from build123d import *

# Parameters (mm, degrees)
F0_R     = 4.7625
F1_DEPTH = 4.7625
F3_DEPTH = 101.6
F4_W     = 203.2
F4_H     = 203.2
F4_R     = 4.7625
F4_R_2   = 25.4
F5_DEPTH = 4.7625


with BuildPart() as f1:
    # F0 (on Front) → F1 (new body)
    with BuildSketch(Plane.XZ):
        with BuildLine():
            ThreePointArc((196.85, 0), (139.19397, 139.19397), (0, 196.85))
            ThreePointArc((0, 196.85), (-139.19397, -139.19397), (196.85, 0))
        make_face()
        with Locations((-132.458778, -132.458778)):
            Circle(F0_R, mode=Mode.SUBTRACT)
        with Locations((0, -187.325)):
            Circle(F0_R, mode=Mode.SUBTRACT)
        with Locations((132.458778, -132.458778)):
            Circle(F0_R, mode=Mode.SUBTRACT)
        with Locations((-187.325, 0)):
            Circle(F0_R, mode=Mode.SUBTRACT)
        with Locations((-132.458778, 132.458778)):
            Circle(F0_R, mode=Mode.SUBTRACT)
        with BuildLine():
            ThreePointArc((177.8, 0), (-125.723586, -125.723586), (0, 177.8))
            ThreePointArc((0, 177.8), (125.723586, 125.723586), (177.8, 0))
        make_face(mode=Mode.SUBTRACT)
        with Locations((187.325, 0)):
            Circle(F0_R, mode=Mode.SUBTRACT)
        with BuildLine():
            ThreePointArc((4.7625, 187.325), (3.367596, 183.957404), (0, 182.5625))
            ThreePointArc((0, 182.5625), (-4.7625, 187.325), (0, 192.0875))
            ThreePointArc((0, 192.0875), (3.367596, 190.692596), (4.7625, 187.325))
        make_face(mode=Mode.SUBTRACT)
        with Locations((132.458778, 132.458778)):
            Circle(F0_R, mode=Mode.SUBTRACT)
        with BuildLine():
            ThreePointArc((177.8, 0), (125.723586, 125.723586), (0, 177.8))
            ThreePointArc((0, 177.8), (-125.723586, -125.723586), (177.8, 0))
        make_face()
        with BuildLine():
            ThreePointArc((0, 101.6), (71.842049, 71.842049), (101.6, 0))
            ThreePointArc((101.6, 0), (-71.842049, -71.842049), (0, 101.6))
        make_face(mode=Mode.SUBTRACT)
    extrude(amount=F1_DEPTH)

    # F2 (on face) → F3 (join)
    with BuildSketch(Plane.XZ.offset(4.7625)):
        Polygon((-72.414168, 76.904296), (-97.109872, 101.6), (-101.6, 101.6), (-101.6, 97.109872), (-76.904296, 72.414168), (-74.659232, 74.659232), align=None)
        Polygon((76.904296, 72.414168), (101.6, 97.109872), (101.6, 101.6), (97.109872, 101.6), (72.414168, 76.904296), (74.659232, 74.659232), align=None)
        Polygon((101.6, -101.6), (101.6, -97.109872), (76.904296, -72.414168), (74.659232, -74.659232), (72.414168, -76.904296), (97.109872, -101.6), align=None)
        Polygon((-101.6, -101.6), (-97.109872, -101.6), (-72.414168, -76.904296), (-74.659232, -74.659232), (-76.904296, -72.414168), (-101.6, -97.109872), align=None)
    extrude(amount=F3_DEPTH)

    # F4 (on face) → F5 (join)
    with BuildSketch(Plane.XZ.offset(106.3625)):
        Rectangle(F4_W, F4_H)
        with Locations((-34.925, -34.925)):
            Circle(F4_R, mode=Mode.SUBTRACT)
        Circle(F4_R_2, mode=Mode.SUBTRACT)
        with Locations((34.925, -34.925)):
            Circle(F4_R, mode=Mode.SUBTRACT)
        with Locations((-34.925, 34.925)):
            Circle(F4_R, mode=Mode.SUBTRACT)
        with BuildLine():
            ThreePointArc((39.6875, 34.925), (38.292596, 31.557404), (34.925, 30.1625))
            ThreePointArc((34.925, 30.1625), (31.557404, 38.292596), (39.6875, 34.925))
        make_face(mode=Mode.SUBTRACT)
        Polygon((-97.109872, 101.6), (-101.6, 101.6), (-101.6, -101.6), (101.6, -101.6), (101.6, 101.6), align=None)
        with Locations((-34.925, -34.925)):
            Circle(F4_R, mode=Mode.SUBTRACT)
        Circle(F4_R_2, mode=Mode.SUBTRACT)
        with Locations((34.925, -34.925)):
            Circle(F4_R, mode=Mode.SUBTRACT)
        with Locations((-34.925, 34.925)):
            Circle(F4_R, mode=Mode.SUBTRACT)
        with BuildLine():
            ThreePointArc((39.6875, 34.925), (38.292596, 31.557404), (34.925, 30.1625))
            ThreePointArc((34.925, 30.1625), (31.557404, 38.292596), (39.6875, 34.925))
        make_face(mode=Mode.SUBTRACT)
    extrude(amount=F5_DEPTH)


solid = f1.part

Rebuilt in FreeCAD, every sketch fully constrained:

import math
import FreeCAD as App
import Part
import Sketcher
from FreeCAD import Vector
Q = App.Units.Quantity


def add_polygon(sketch, points):
    """Adds a closed chain of lines whose ends are joined by coincident constraints."""
    first, n = sketch.GeometryCount, len(points)
    for a, b in zip(points, points[1:] + points[:1]):
        sketch.addGeometry(Part.LineSegment(App.Vector(*a, 0), App.Vector(*b, 0)), False)
    for i in range(n):
        sketch.addConstraint(Sketcher.Constraint("Coincident", first + i, 2, first + (i + 1) % n, 1))

doc = App.newDocument("Part")
body = doc.addObject("PartDesign::Body", "Body")

# Sketch on XZ plane
sketch1 = doc.addObject("Sketcher::SketchObject", "Sketch")
body.addObject(sketch1)
sketch1.AttachmentSupport = (doc.XZ_Plane, [""])
sketch1.MapMode = "FlatFace"
sketch1.addGeometry([
    Part.ArcOfCircle(Part.Circle(Vector(0, 0, 0), Vector(0, 0, 1), 196.8), math.radians(0), math.radians(90)),  # 0
    Part.ArcOfCircle(Part.Circle(Vector(0, 0, 0), Vector(0, 0, 1), 196.9), math.radians(90), math.radians(360)),  # 1
    Part.Circle(Vector(-132.5, -132.5, 0), Vector(0, 0, 1), 4.8),  # 2
    Part.Circle(Vector(-187.3, 0, 0), Vector(0, 0, 1), 4.8),  # 3
    Part.ArcOfCircle(Part.Circle(Vector(0, 0, 0), Vector(0, 0, 1), 101.6), math.radians(90), math.radians(360)),  # 4
    Part.ArcOfCircle(Part.Circle(Vector(0, 0, 0), Vector(0, 0, 1), 101.6), math.radians(0), math.radians(90)),  # 5
    Part.Circle(Vector(0, -187.3, 0), Vector(0, 0, 1), 4.8),  # 6
    Part.Circle(Vector(132.5, -132.5, 0), Vector(0, 0, 1), 4.8),  # 7
    Part.Circle(Vector(187.3, 0, 0), Vector(0, 0, 1), 4.8),  # 8
    Part.Circle(Vector(-132.5, 132.5, 0), Vector(0, 0, 1), 4.8),  # 9
    Part.ArcOfCircle(Part.Circle(Vector(0, 187.3, 0), Vector(0, 0, 1), 4.8), math.radians(0), math.radians(90)),  # 10
    Part.ArcOfCircle(Part.Circle(Vector(0, 187.3, 0), Vector(0, 0, 1), 4.8), math.radians(-90), math.radians(0)),  # 11
    Part.ArcOfCircle(Part.Circle(Vector(0, 187.3, 0), Vector(0, 0, 1), 4.8), math.radians(90), math.radians(270)),  # 12
    Part.Circle(Vector(132.5, 132.5, 0), Vector(0, 0, 1), 4.8),  # 13
], False)
sketch1.addConstraint([
    Sketcher.Constraint("Tangent", 0, 1, 1, 2),
    Sketcher.Constraint("Coincident", 1, 1, 0, 2),
    Sketcher.Constraint("Tangent", 4, 1, 5, 2),
    Sketcher.Constraint("Coincident", 5, 1, 4, 2),
    Sketcher.Constraint("Tangent", 10, 1, 11, 2),
    Sketcher.Constraint("Tangent", 11, 1, 12, 2),
    Sketcher.Constraint("Tangent", 12, 1, 10, 2),
    Sketcher.Constraint("Coincident", 0, 3, -1, 1),
    Sketcher.Constraint("Coincident", 4, 3, -1, 1),
    Sketcher.Constraint("Equal", 2, 3),
    Sketcher.Constraint("Equal", 3, 6),
    Sketcher.Constraint("Equal", 6, 7),
    Sketcher.Constraint("Equal", 7, 8),
    Sketcher.Constraint("Equal", 8, 9),
    Sketcher.Constraint("Equal", 9, 10),
    Sketcher.Constraint("Equal", 12, 13),
    Sketcher.Constraint("Symmetric", 3, 3, 8, 3, -1, 1),
    Sketcher.Constraint("Symmetric", 7, 3, 9, 3, -1, 1),
    Sketcher.Constraint("Symmetric", 6, 3, 10, 3, -1, 1),
    Sketcher.Constraint("Symmetric", 2, 3, 13, 3, -1, 1),
    Sketcher.Constraint("Symmetric", 2, 3, 7, 3, -2),
    Sketcher.Constraint("PointOnObject", 3, 3, -1),
    Sketcher.Constraint("PointOnObject", 6, 3, -2),
    Sketcher.Constraint("PointOnObject", 0, 1, -1),
    Sketcher.Constraint("PointOnObject", 1, 1, -2),
    Sketcher.Constraint("PointOnObject", 4, 1, -2),
    Sketcher.Constraint("PointOnObject", 5, 1, -1),
    Sketcher.Constraint("PointOnObject", 11, 1, -2),
    Sketcher.Constraint("PointOnObject", 12, 1, -2),
    Sketcher.Constraint("Horizontal", 12, 3, 10, 1),
    Sketcher.Constraint("Radius", 4, Q("4 in")),
    Sketcher.Constraint("Radius", 0, Q("7.75 in")),
    Sketcher.Constraint("Diameter", 2, Q("0.375 in")),
    Sketcher.Constraint("DistanceX", 3, 3, -1, 1, Q("7.375 in")),
    Sketcher.Constraint("DistanceY", 6, 3, -1, 1, Q("7.375 in")),
    Sketcher.Constraint("DistanceX", 2, 3, -1, 1, 132.458778),
    Sketcher.Constraint("DistanceY", 2, 3, -1, 1, 132.458778),
])
pad1 = doc.addObject("PartDesign::Pad", "Pad")
body.addObject(pad1)
pad1.Profile = sketch1
pad1.Length = Q("0.1875 in")

# Sketch on XZ plane
sketch2 = doc.addObject("Sketcher::SketchObject", "Sketch001")
body.addObject(sketch2)
sketch2.AttachmentSupport = (doc.XZ_Plane, [""])
sketch2.MapMode = "FlatFace"
sketch2.AttachmentOffset = App.Placement(Vector(0, 0, 0.1875 * 25.4), App.Rotation())
add_polygon(sketch2, [(-72.4, 76.9), (-97.1, 101.6), (-101.6, 101.6), (-101.6, 97.1), (-76.9, 72.4)])  # lines 0-4
add_polygon(sketch2, [(76.9, 72.4), (101.6, 97.1), (101.6, 101.6), (97.1, 101.6), (72.4, 76.9)])  # lines 5-9
add_polygon(sketch2, [(101.6, -101.6), (101.6, -97.1), (76.9, -72.4), (72.4, -76.9), (97.1, -101.6)])  # lines 10-14
add_polygon(sketch2, [(-101.6, -101.6), (-97.1, -101.6), (-72.4, -76.9), (-76.9, -72.4), (-101.6, -97.1)])  # lines 15-19
sketch2.addConstraint([
    Sketcher.Constraint("Horizontal", 1),
    Sketcher.Constraint("Vertical", 2),
    Sketcher.Constraint("Vertical", 6),
    Sketcher.Constraint("Horizontal", 7),
    Sketcher.Constraint("Vertical", 10),
    Sketcher.Constraint("Horizontal", 14),
    Sketcher.Constraint("Horizontal", 15),
    Sketcher.Constraint("Vertical", 19),
    Sketcher.Constraint("Symmetric", 2, 2, 10, 2, -1, 1),
    Sketcher.Constraint("Symmetric", 3, 2, 11, 2, -1, 1),
    Sketcher.Constraint("Symmetric", 4, 2, 12, 2, -1, 1),
    Sketcher.Constraint("Symmetric", 0, 2, 13, 2, -1, 1),
    Sketcher.Constraint("Symmetric", 7, 2, 15, 2, -1, 1),
    Sketcher.Constraint("Symmetric", 8, 2, 16, 2, -1, 1),
    Sketcher.Constraint("Symmetric", 9, 2, 17, 2, -1, 1),
    Sketcher.Constraint("Symmetric", 5, 2, 18, 2, -1, 1),
    Sketcher.Constraint("Symmetric", 2, 2, 5, 2, -2),
    Sketcher.Constraint("Symmetric", 0, 2, 7, 2, -2),
    Sketcher.Constraint("Symmetric", 4, 2, 8, 2, -2),
    Sketcher.Constraint("Symmetric", 3, 2, 9, 2, -2),
    Sketcher.Constraint("Parallel", 0, 3),
    Sketcher.Constraint("Perpendicular", 3, 4),
    Sketcher.Constraint("Parallel", 4, 5),
    Sketcher.Constraint("Equal", 15, 2),
    Sketcher.Constraint("DistanceY", -1, 1, 0, 2, Q("4 in")),
    Sketcher.Constraint("DistanceX", 1, 2, -1, 1, Q("4 in")),
    Sketcher.Constraint("Distance", 4, Q("0.25 in")),
    Sketcher.Constraint("Distance", 0, Q("1.375 in")),
])
pad2 = doc.addObject("PartDesign::Pad", "Pad001")
body.addObject(pad2)
pad2.Profile = sketch2
pad2.Length = Q("4 in")

# Sketch on XZ plane
sketch3 = doc.addObject("Sketcher::SketchObject", "Sketch002")
body.addObject(sketch3)
sketch3.AttachmentSupport = (doc.XZ_Plane, [""])
sketch3.MapMode = "FlatFace"
sketch3.AttachmentOffset = App.Placement(Vector(0, 0, 4.1875 * 25.4), App.Rotation())
add_polygon(sketch3, [(-101.6, 101.6), (-101.6, -101.6), (101.6, -101.6), (101.6, 101.6)])  # lines 0-3
sketch3.addGeometry(Part.Circle(Vector(-34.9, -34.9, 0), Vector(0, 0, 1), 4.8), False)  # 4
sketch3.addGeometry(Part.Circle(Vector(34.9, -34.9, 0), Vector(0, 0, 1), 4.8), False)  # 5
sketch3.addGeometry(Part.Circle(Vector(-34.9, 34.9, 0), Vector(0, 0, 1), 4.8), False)  # 6
sketch3.addGeometry(Part.Circle(Vector(0, 0, 0), Vector(0, 0, 1), 25.4), False)  # 7
sketch3.addGeometry(Part.ArcOfCircle(Part.Circle(Vector(34.9, 34.9, 0), Vector(0, 0, 1), 4.8), math.radians(0), math.radians(270)), False)  # 8
sketch3.addGeometry(Part.ArcOfCircle(Part.Circle(Vector(34.9, 34.9, 0), Vector(0, 0, 1), 4.8), math.radians(-90), math.radians(0)), False)  # 9
sketch3.addConstraint([
    Sketcher.Constraint("Tangent", 8, 1, 9, 2),
    Sketcher.Constraint("Coincident", 9, 1, 8, 2),
    Sketcher.Constraint("Vertical", 0),
    Sketcher.Constraint("Horizontal", 1),
    Sketcher.Constraint("Vertical", 2),
    Sketcher.Constraint("Horizontal", 3),
    Sketcher.Constraint("Coincident", 7, 3, -1, 1),
    Sketcher.Constraint("Equal", 4, 5),
    Sketcher.Constraint("Equal", 5, 6),
    Sketcher.Constraint("Equal", 6, 8),
    Sketcher.Constraint("Symmetric", 5, 3, 6, 3, -1, 1),
    Sketcher.Constraint("Symmetric", 4, 3, 8, 3, -1, 1),
    Sketcher.Constraint("Symmetric", 0, 2, 2, 2, -1, 1),
    Sketcher.Constraint("Symmetric", 4, 3, 5, 3, -2),
    Sketcher.Constraint("Horizontal", 9, 3, 8, 1),
    Sketcher.Constraint("Vertical", 8, 3, 9, 1),
    Sketcher.Constraint("Equal", 3, 0),
    Sketcher.Constraint("Diameter", 7, Q("2 in")),
    Sketcher.Constraint("DistanceX", 1, 1, 1, 2, Q("8 in")),
    Sketcher.Constraint("Diameter", 4, Q("0.375 in")),
    Sketcher.Constraint("DistanceX", 4, 3, 5, 3, Q("2.75 in")),
    Sketcher.Constraint("DistanceY", 4, 3, 6, 3, Q("2.75 in")),
])
pad3 = doc.addObject("PartDesign::Pad", "Pad002")
body.addObject(pad3)
pad3.Profile = sketch3
pad3.Length = Q("0.1875 in")

doc.recompute()
